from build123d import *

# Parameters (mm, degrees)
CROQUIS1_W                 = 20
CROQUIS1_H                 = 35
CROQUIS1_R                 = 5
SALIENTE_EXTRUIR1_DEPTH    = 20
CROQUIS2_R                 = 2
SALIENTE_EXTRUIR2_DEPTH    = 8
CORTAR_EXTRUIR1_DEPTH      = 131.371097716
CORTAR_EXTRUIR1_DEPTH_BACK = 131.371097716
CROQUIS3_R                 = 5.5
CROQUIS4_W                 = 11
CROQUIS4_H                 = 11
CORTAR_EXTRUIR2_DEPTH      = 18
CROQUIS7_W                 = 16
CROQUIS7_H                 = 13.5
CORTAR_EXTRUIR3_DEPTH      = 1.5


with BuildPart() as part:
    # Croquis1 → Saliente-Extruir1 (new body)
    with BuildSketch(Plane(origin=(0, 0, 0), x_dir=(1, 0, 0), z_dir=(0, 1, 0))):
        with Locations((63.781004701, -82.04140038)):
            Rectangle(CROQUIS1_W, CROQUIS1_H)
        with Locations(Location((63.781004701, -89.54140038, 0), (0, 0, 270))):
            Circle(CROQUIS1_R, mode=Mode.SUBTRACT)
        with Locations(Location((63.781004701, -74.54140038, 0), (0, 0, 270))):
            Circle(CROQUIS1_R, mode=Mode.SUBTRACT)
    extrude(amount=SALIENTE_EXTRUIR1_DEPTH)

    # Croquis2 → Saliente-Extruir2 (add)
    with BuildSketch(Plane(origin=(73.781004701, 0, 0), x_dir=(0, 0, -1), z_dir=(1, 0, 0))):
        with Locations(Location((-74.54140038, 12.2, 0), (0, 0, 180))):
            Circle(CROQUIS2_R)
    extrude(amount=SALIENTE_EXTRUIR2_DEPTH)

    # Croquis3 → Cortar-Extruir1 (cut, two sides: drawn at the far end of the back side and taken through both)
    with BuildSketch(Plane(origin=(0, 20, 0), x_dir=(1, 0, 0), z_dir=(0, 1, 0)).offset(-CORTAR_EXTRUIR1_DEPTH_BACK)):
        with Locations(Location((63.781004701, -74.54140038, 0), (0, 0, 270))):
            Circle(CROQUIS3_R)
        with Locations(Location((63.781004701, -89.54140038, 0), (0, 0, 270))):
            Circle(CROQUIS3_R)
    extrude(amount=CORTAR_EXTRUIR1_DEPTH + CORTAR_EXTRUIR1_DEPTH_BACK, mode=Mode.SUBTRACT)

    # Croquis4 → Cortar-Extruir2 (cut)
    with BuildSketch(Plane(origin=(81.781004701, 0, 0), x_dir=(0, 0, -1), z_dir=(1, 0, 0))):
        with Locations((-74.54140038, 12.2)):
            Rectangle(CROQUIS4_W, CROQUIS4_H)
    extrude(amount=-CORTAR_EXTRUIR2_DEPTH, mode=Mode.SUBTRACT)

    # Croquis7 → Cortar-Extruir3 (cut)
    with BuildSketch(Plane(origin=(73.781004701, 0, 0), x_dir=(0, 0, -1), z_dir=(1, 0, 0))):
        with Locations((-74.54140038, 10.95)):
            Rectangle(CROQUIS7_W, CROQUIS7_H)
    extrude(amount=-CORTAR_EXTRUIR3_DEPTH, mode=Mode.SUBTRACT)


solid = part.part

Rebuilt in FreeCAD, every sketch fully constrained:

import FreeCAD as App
import Part
import Sketcher

doc = App.newDocument("Part")
body = doc.addObject("PartDesign::Body", "Body")

sketch1 = doc.addObject("Sketcher::SketchObject", "Sketch")
body.addObject(sketch1)
sketch1.AttachmentSupport = (doc.XZ_Plane, [""])
sketch1.MapMode = "FlatFace"
sketch1.addGeometry(Part.LineSegment(App.Vector(54, 65, 0), App.Vector(54, 100, 0)), False)
sketch1.addGeometry(Part.LineSegment(App.Vector(54, 100, 0), App.Vector(74, 100, 0)), False)
sketch1.addGeometry(Part.LineSegment(App.Vector(74, 100, 0), App.Vector(74, 65, 0)), False)
sketch1.addGeometry(Part.LineSegment(App.Vector(74, 65, 0), App.Vector(54, 65, 0)), False)
sketch1.addGeometry(Part.Circle(App.Vector(64, 90, 0), App.Vector(0, 0, 1), 5), False)
sketch1.addGeometry(Part.Circle(App.Vector(64, 75, 0), App.Vector(0, 0, 1), 5), False)
sketch1.addConstraint(Sketcher.Constraint("Coincident", 0, 2, 1, 1))
sketch1.addConstraint(Sketcher.Constraint("Coincident", 1, 2, 2, 1))
sketch1.addConstraint(Sketcher.Constraint("Coincident", 2, 2, 3, 1))
sketch1.addConstraint(Sketcher.Constraint("Coincident", 3, 2, 0, 1))
sketch1.addConstraint(Sketcher.Constraint("Vertical", 0))
sketch1.addConstraint(Sketcher.Constraint("Horizontal", 1))
sketch1.addConstraint(Sketcher.Constraint("Vertical", 2))
sketch1.addConstraint(Sketcher.Constraint("Horizontal", 3))
sketch1.addConstraint(Sketcher.Constraint("Equal", 4, 5))
sketch1.addConstraint(Sketcher.Constraint("Vertical", 4, 3, 5, 3))
sketch1.addConstraint(Sketcher.Constraint("Diameter", 4, 10.0))
sketch1.addConstraint(Sketcher.Constraint("DistanceX", 1, 1, 1, 2, 20.0))
sketch1.addConstraint(Sketcher.Constraint("DistanceY", 0, 1, 0, 2, 35.0))
sketch1.addConstraint(Sketcher.Constraint("DistanceY", 5, 3, 4, 3, 15.0))
sketch1.addConstraint(Sketcher.Constraint("DistanceX", 0, 2, 4, 3, 10.0))
sketch1.addConstraint(Sketcher.Constraint("DistanceY", 4, 3, 0, 2, 10.0))
sketch1.addConstraint(Sketcher.Constraint("DistanceY", -1, 1, 4, 3, 89.5414))
sketch1.addConstraint(Sketcher.Constraint("DistanceX", -1, 1, 4, 3, 63.781005))
pad1 = doc.addObject("PartDesign::Pad", "Pad")
body.addObject(pad1)
pad1.Profile = sketch1
pad1.Length = 20
pad1.Reversed = True

sketch2 = doc.addObject("Sketcher::SketchObject", "Sketch001")
body.addObject(sketch2)
sketch2.AttachmentSupport = (doc.YZ_Plane, [""])
sketch2.MapMode = "FlatFace"
sketch2.AttachmentOffset = App.Placement(App.Vector(0, 0, 73.781005), App.Rotation())
sketch2.addGeometry(Part.Circle(App.Vector(12.2, 74.5, 0), App.Vector(0, 0, 1), 2), False)
sketch2.addConstraint(Sketcher.Constraint("Diameter", 0, 4.0))
sketch2.addConstraint(Sketcher.Constraint("DistanceX", -1, 1, 0, 3, 12.2))
sketch2.addConstraint(Sketcher.Constraint("DistanceY", -1, 1, 0, 3, 74.5414))
pad2 = doc.addObject("PartDesign::Pad", "Pad001")
body.addObject(pad2)
pad2.Profile = sketch2
pad2.Length = 8

sketch3 = doc.addObject("Sketcher::SketchObject", "Sketch002")
body.addObject(sketch3)
sketch3.AttachmentSupport = (doc.XZ_Plane, [""])
sketch3.MapMode = "FlatFace"
sketch3.AttachmentOffset = App.Placement(App.Vector(0, 0, -20), App.Rotation())
sketch3.addGeometry(Part.Circle(App.Vector(64, 75, 0), App.Vector(0, 0, 1), 6), False)
sketch3.addGeometry(Part.Circle(App.Vector(64, 90, 0), App.Vector(0, 0, 1), 6), False)
sketch3.addConstraint(Sketcher.Constraint("Equal", 0, 1))
sketch3.addConstraint(Sketcher.Constraint("Vertical", 0, 3, 1, 3))
sketch3.addConstraint(Sketcher.Constraint("Diameter", 0, 11.0))
sketch3.addConstraint(Sketcher.Constraint("DistanceY", 0, 3, 1, 3, 15.0))
sketch3.addConstraint(Sketcher.Constraint("DistanceY", -1, 1, 0, 3, 74.5414))
sketch3.addConstraint(Sketcher.Constraint("DistanceX", -1, 1, 0, 3, 63.781005))
pocket1 = doc.addObject("PartDesign::Pocket", "Pocket")
body.addObject(pocket1)
pocket1.Profile = sketch3
pocket1.Type = "ThroughAll"
pocket1.Midplane = True

sketch4 = doc.addObject("Sketcher::SketchObject", "Sketch003")
body.addObject(sketch4)
sketch4.AttachmentSupport = (doc.YZ_Plane, [""])
sketch4.MapMode = "FlatFace"
sketch4.AttachmentOffset = App.Placement(App.Vector(0, 0, 81.781005), App.Rotation())
sketch4.addGeometry(Part.LineSegment(App.Vector(18, 80, 0), App.Vector(7, 80, 0)), False)
sketch4.addGeometry(Part.LineSegment(App.Vector(7, 80, 0), App.Vector(7, 69, 0)), False)
sketch4.addGeometry(Part.LineSegment(App.Vector(7, 69, 0), App.Vector(18, 69, 0)), False)
sketch4.addGeometry(Part.LineSegment(App.Vector(18, 69, 0), App.Vector(18, 80, 0)), False)
sketch4.addConstraint(Sketcher.Constraint("Coincident", 0, 2, 1, 1))
sketch4.addConstraint(Sketcher.Constraint("Coincident", 1, 2, 2, 1))
sketch4.addConstraint(Sketcher.Constraint("Coincident", 2, 2, 3, 1))
sketch4.addConstraint(Sketcher.Constraint("Coincident", 3, 2, 0, 1))
sketch4.addConstraint(Sketcher.Constraint("Horizontal", 0))
sketch4.addConstraint(Sketcher.Constraint("Vertical", 1))
sketch4.addConstraint(Sketcher.Constraint("Horizontal", 2))
sketch4.addConstraint(Sketcher.Constraint("Vertical", 3))
sketch4.addConstraint(Sketcher.Constraint("Equal", 2, 1))
sketch4.addConstraint(Sketcher.Constraint("DistanceX", 0, 2, 0, 1, 11.0))
sketch4.addConstraint(Sketcher.Constraint("DistanceX", -1, 1, 0, 2, 6.7))
sketch4.addConstraint(Sketcher.Constraint("DistanceY", -1, 1, 0, 2, 80.0414))
pocket2 = doc.addObject("PartDesign::Pocket", "Pocket001")
body.addObject(pocket2)
pocket2.Profile = sketch4
pocket2.Length = 18

sketch5 = doc.addObject("Sketcher::SketchObject", "Sketch004")
body.addObject(sketch5)
sketch5.AttachmentSupport = (doc.YZ_Plane, [""])
sketch5.MapMode = "FlatFace"
sketch5.AttachmentOffset = App.Placement(App.Vector(0, 0, 73.781005), App.Rotation())
sketch5.addGeometry(Part.LineSegment(App.Vector(18, 83, 0), App.Vector(4, 83, 0)), False)
sketch5.addGeometry(Part.LineSegment(App.Vector(4, 83, 0), App.Vector(4, 67, 0)), False)
sketch5.addGeometry(Part.LineSegment(App.Vector(4, 67, 0), App.Vector(18, 67, 0)), False)
sketch5.addGeometry(Part.LineSegment(App.Vector(18, 67, 0), App.Vector(18, 83, 0)), False)
sketch5.addConstraint(Sketcher.Constraint("Coincident", 0, 2, 1, 1))
sketch5.addConstraint(Sketcher.Constraint("Coincident", 1, 2, 2, 1))
sketch5.addConstraint(Sketcher.Constraint("Coincident", 2, 2, 3, 1))
sketch5.addConstraint(Sketcher.Constraint("Coincident", 3, 2, 0, 1))
sketch5.addConstraint(Sketcher.Constraint("Horizontal", 0))
sketch5.addConstraint(Sketcher.Constraint("Vertical", 1))
sketch5.addConstraint(Sketcher.Constraint("Horizontal", 2))
sketch5.addConstraint(Sketcher.Constraint("Vertical", 3))
sketch5.addConstraint(Sketcher.Constraint("DistanceY", 1, 2, 1, 1, 16.0))
sketch5.addConstraint(Sketcher.Constraint("DistanceX", 0, 2, 0, 1, 13.5))
sketch5.addConstraint(Sketcher.Constraint("DistanceX", -1, 1, 0, 2, 4.2))
sketch5.addConstraint(Sketcher.Constraint("DistanceY", -1, 1, 0, 2, 82.5414))
pocket3 = doc.addObject("PartDesign::Pocket", "Pocket002")
body.addObject(pocket3)
pocket3.Profile = sketch5
pocket3.Length = 1.5

doc.recompute()
